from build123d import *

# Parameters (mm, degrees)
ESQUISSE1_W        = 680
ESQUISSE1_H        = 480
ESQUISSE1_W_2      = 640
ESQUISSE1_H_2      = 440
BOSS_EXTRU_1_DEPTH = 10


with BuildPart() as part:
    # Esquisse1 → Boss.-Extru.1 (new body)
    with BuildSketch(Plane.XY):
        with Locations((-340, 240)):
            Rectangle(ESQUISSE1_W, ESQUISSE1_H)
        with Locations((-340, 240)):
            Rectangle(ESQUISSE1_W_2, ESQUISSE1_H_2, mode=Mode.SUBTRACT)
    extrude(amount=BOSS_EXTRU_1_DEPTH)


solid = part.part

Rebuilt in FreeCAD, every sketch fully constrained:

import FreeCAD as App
import Part
import Sketcher

V = App.Vector


def add_polygon(sketch, points):
    """Adds a closed chain of lines whose ends are joined by coincident constraints."""
    first, n = sketch.GeometryCount, len(points)
    for a, b in zip(points, points[1:] + points[:1]):
        sketch.addGeometry(Part.LineSegment(App.Vector(*a, 0), App.Vector(*b, 0)), False)
    for i in range(n):
        sketch.addConstraint(Sketcher.Constraint("Coincident", first + i, 2, first + (i + 1) % n, 1))

doc = App.newDocument("Part")
params = doc.addObject("Spreadsheet::Sheet", "Params")
for row, (alias, value) in enumerate([
    ("sketch1_width", "680 mm"),
    ("sketch1_width2", "640 mm"),
    ("sketch1_height", "480 mm"),
    ("sketch1_height2", "440 mm"),
    ("pad1_length", "10 mm"),
], start=1):
    params.set(f"A{row}", alias)
    params.set(f"B{row}", "=" + value)
    params.setAlias(f"B{row}", alias)

body = doc.addObject("PartDesign::Body", "Body")

# Sketch on XY plane
sketch1 = body.newObject("Sketcher::SketchObject", "Sketch")
sketch1.AttachmentSupport = (doc.getObject("XY_Plane"), [""])
sketch1.MapMode = "FlatFace"
add_polygon(sketch1, [(-680, 480), (-680, 0), (0, 0), (0, 480)])  # lines 0-3
add_polygon(sketch1, [(-20, 20), (-660, 20), (-660, 460), (-20, 460)])  # lines 4-7
sketch1.addConstraint(Sketcher.Constraint("Vertical", 0))
sketch1.addConstraint(Sketcher.Constraint("Horizontal", 1))
sketch1.addConstraint(Sketcher.Constraint("Vertical", 2))
sketch1.addConstraint(Sketcher.Constraint("Horizontal", 3))
sketch1.addConstraint(Sketcher.Constraint("Horizontal", 4))
sketch1.addConstraint(Sketcher.Constraint("Vertical", 5))
sketch1.addConstraint(Sketcher.Constraint("Horizontal", 6))
sketch1.addConstraint(Sketcher.Constraint("Vertical", 7))
sketch1.addConstraint(Sketcher.Constraint("Coincident", 1, 2, -1, 1))
sketch1.addConstraint(Sketcher.Constraint("DistanceX", 1, 1, 1, 2, 680.0))
sketch1.addConstraint(Sketcher.Constraint("DistanceX", 4, 2, 4, 1, 640.0))
sketch1.addConstraint(Sketcher.Constraint("DistanceY", 0, 2, 0, 1, 480.0))
sketch1.addConstraint(Sketcher.Constraint("DistanceY", 5, 1, 5, 2, 440.0))
sketch1.addConstraint(Sketcher.Constraint("DistanceX", 4, 2, -1, 1, 660.0))
sketch1.addConstraint(Sketcher.Constraint("DistanceY", -1, 1, 4, 2, 20.0))
sketch1.setExpression("Constraints[17]", "Params.sketch1_width")
sketch1.setExpression("Constraints[18]", "Params.sketch1_width2")
sketch1.setExpression("Constraints[19]", "Params.sketch1_height")
sketch1.setExpression("Constraints[20]", "Params.sketch1_height2")
pad1 = body.newObject("PartDesign::Pad", "Pad")
pad1.Profile = sketch1
pad1.setExpression("Length", "Params.pad1_length")

doc.recompute()
